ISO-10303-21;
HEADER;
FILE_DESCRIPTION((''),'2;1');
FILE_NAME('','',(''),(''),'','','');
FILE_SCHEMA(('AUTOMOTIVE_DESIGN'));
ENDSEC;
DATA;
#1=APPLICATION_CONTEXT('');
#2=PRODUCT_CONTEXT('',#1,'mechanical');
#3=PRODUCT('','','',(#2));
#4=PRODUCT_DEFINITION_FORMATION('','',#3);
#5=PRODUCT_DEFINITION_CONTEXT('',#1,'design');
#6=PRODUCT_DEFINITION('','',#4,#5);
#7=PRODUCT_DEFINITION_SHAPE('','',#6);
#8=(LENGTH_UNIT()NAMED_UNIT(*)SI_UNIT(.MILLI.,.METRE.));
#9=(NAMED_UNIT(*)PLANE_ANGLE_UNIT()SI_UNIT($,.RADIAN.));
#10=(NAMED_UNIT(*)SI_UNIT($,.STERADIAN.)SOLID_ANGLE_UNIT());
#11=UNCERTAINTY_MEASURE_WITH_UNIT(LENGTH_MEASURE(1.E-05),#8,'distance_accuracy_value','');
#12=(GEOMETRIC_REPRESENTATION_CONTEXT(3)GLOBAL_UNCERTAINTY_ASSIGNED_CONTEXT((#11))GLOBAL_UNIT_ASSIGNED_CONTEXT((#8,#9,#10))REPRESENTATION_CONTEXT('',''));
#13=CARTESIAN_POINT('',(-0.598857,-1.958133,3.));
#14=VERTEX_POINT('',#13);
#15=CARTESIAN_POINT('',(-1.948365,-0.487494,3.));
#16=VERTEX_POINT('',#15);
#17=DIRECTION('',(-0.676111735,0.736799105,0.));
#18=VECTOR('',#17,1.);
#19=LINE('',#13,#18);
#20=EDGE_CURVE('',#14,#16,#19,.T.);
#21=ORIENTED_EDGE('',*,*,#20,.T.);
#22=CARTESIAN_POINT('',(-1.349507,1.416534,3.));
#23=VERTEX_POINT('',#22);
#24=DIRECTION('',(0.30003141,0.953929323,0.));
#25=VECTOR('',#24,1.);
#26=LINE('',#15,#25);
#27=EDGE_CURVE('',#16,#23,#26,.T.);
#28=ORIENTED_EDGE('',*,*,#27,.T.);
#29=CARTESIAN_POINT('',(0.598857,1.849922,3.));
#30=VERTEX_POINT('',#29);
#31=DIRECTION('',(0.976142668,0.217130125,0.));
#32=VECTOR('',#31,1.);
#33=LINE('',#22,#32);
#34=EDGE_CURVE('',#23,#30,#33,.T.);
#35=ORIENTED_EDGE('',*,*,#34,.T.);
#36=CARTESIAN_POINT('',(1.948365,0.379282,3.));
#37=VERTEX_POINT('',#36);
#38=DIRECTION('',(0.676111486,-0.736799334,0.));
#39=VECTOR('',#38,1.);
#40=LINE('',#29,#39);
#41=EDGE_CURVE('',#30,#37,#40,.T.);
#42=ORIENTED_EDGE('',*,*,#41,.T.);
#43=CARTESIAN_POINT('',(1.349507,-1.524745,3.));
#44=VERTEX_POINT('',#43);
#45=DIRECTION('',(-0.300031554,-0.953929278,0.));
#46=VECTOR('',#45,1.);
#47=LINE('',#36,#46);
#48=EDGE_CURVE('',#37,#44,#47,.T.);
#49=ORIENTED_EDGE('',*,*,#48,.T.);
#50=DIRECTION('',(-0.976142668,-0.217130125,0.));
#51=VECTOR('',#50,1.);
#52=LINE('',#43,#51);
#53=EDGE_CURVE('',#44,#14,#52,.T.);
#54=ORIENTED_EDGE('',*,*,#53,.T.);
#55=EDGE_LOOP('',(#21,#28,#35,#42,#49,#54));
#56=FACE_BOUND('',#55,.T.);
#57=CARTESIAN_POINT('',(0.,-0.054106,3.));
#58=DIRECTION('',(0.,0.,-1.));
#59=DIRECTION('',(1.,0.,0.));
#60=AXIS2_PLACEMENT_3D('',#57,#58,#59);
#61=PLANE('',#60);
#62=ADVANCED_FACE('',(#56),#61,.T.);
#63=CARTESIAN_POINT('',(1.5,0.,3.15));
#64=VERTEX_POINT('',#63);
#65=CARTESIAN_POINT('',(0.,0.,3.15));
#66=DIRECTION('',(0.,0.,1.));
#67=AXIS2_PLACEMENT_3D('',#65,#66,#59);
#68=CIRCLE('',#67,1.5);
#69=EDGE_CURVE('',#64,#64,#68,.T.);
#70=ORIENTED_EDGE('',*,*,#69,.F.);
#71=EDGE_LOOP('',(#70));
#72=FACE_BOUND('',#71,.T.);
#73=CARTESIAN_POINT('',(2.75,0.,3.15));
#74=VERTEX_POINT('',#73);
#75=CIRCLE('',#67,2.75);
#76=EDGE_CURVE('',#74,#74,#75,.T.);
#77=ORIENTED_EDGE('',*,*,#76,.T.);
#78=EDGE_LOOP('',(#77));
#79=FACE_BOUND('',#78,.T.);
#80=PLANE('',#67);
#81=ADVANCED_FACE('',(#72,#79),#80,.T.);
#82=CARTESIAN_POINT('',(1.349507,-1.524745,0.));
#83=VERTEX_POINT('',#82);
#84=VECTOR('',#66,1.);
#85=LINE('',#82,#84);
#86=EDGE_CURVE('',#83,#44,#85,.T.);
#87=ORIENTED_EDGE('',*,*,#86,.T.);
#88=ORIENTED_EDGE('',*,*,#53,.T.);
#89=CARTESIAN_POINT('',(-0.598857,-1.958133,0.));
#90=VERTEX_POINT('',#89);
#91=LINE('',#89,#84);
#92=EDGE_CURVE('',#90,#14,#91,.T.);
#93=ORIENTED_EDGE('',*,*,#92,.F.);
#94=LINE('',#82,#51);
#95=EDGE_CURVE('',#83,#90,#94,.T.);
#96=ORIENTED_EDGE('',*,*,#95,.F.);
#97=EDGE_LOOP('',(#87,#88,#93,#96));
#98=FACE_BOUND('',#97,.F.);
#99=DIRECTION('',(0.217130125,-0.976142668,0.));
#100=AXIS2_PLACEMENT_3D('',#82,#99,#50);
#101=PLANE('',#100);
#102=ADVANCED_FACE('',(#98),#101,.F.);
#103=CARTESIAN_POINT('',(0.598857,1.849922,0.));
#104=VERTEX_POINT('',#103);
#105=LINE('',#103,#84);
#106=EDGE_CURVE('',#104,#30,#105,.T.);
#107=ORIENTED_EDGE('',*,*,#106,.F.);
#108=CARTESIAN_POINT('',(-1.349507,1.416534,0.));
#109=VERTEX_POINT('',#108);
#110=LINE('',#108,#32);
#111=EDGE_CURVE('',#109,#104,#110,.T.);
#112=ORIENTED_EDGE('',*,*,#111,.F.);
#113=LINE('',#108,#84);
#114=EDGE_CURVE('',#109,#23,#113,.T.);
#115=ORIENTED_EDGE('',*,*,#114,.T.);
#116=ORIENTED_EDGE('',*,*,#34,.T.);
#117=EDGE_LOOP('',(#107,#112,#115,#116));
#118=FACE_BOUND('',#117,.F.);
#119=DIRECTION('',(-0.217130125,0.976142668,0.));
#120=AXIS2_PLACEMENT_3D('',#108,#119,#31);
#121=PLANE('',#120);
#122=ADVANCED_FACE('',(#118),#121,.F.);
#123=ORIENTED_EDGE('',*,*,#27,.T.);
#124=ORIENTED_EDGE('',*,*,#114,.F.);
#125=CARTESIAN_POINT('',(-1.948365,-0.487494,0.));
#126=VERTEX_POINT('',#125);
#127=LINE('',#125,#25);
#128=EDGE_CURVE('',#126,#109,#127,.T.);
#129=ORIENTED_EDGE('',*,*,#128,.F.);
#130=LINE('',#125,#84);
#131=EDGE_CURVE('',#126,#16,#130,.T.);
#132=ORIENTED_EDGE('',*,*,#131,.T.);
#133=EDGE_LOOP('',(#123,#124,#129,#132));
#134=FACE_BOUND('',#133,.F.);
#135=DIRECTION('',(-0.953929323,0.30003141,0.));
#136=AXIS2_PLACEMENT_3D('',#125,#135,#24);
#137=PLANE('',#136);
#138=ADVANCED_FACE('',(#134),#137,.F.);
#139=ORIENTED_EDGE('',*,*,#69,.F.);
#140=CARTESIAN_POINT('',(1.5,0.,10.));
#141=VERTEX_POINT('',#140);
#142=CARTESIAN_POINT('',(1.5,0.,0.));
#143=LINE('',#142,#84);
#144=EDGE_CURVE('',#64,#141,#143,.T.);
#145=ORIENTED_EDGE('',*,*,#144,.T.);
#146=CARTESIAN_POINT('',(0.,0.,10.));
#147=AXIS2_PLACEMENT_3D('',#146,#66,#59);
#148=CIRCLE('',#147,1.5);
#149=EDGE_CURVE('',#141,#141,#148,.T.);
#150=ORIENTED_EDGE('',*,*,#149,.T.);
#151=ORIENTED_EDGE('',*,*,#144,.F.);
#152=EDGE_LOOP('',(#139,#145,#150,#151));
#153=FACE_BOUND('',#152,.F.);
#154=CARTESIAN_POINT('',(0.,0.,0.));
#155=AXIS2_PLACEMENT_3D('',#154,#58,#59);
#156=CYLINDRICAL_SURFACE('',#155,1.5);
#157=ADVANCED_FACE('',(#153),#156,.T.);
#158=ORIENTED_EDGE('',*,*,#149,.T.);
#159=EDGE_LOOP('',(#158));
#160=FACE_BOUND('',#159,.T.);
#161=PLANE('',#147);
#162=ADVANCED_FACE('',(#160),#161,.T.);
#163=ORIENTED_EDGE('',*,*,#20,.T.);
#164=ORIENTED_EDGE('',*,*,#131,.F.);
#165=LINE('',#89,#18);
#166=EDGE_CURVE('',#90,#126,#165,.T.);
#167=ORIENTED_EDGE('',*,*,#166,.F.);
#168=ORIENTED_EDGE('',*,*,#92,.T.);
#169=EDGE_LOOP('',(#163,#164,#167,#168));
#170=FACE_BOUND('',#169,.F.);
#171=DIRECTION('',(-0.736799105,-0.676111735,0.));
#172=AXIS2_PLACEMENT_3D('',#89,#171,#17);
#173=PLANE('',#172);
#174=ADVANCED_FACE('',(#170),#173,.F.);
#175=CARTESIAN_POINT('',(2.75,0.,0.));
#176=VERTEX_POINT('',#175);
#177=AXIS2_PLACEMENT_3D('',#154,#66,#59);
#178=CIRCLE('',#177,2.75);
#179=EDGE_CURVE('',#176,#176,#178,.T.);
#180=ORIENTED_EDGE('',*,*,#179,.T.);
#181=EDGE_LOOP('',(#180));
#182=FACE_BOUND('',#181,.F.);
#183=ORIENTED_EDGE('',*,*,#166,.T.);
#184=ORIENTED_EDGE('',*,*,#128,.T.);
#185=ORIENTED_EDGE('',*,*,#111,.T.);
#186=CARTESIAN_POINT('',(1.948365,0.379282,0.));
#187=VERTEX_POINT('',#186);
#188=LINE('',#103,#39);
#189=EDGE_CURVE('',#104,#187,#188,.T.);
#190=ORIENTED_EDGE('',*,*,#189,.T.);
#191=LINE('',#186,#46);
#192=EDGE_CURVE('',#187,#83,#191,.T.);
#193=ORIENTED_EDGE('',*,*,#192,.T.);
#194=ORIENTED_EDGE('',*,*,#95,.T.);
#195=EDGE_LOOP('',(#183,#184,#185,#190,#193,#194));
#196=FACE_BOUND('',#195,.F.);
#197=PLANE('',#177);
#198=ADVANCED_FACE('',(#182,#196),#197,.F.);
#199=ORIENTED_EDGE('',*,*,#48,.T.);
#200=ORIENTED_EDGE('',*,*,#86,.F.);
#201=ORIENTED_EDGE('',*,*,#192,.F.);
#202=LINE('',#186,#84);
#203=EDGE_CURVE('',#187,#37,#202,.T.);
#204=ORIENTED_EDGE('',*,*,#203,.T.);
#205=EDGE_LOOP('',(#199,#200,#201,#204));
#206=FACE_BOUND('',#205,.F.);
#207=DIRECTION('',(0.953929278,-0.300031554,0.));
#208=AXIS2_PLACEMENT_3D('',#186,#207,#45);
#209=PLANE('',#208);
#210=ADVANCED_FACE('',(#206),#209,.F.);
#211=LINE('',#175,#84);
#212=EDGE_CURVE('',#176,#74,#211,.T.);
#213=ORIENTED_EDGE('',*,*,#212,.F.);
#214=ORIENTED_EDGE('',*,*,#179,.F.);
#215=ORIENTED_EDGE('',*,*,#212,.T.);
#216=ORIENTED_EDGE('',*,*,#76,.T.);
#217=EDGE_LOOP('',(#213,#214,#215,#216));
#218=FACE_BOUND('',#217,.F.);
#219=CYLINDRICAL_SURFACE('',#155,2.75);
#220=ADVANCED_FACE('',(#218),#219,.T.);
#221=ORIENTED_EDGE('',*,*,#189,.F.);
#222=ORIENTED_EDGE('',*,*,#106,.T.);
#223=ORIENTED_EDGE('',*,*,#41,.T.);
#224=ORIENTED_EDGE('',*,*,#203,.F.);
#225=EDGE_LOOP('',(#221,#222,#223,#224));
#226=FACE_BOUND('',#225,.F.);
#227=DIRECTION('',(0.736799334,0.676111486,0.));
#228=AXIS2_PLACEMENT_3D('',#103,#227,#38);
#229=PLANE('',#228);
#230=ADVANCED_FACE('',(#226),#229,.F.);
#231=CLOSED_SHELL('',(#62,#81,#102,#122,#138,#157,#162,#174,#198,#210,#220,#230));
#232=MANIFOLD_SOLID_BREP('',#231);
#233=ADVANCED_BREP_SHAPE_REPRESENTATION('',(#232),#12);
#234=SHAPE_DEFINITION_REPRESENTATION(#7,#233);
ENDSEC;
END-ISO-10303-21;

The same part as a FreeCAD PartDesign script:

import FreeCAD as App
import Part
import Sketcher
from FreeCAD import Vector
Q = App.Units.Quantity

doc = App.newDocument("Part")
body = doc.addObject("PartDesign::Body", "Body")

# Sketch on XY plane
sketch1 = body.newObject("Sketcher::SketchObject", "Sketch")
sketch1.AttachmentSupport = (doc.getObject("XY_Plane"), [""])
sketch1.MapMode = "FlatFace"
sketch1.addGeometry([
    Part.Circle(Vector(0, 0, 0), Vector(0, 0, 1), 2.75),
    Part.Circle(Vector(0, 0, 0), Vector(0, 0, 1), 1.5),
], False)
sketch1.addConstraint([
    Sketcher.Constraint("Coincident", 0, 3, -1, 1),
    Sketcher.Constraint("Coincident", 1, 3, -1, 1),
    Sketcher.Constraint("Diameter", 1, Q("3 mm")),
    Sketcher.Constraint("Diameter", 0, Q("5.5 mm")),
])
pad1 = body.newObject("PartDesign::Pad", "Pad")
pad1.Profile = sketch1
pad1.Length = 3.15

# Sketch on XY plane
sketch2 = body.newObject("Sketcher::SketchObject", "Sketch001")
sketch2.AttachmentSupport = (doc.getObject("XY_Plane"), [""])
sketch2.MapMode = "FlatFace"
sketch2.addGeometry(Part.Circle(Vector(0, 0, 0), Vector(0, 0, 1), 1.5), False)
sketch2.addConstraint([
    Sketcher.Constraint("Coincident", 0, 3, -1, 1),
    Sketcher.Constraint("Diameter", 0, Q("3 mm")),
])
pad2 = body.newObject("PartDesign::Pad", "Pad001")
pad2.Profile = sketch2
pad2.Length = 10

# Sketch on XY plane
sketch3 = body.newObject("Sketcher::SketchObject", "Sketch002")
sketch3.AttachmentSupport = (doc.getObject("XY_Plane"), [""])
sketch3.MapMode = "FlatFace"
sketch3.addGeometry([
    Part.LineSegment(Vector(1.349507, -1.524745, 0), Vector(-0.598857, -1.958133, 0)),  # 0
    Part.LineSegment(Vector(-0.598857, -1.958133, 0), Vector(-1.948365, -0.487494, 0)),  # 1
    Part.LineSegment(Vector(-1.948365, -0.487494, 0), Vector(-1.349507, 1.416534, 0)),  # 2
    Part.LineSegment(Vector(-1.349507, 1.416534, 0), Vector(0.598857, 1.849922, 0)),  # 3
    Part.LineSegment(Vector(0.598857, 1.849922, 0), Vector(1.948365, 0.379282, 0)),  # 4
    Part.LineSegment(Vector(1.948365, 0.379282, 0), Vector(1.349507, -1.524745, 0)),  # 5
], False)
sketch3.addConstraint([
    Sketcher.Constraint("Coincident", 0, 2, 1, 1),
    Sketcher.Constraint("Coincident", 1, 2, 2, 1),
    Sketcher.Constraint("Coincident", 2, 2, 3, 1),
    Sketcher.Constraint("Coincident", 3, 2, 4, 1),
    Sketcher.Constraint("Coincident", 4, 2, 5, 1),
    Sketcher.Constraint("Coincident", 5, 2, 0, 1),
    Sketcher.Constraint("Parallel", 0, 3),
    Sketcher.Constraint("Parallel", 1, 4),
    Sketcher.Constraint("Parallel", 2, 5),
    Sketcher.Constraint("Equal", 0, 1),
    Sketcher.Constraint("Equal", 1, 2),
    Sketcher.Constraint("Equal", 2, 3),
    Sketcher.Constraint("DistanceY", 0, 2, 1, 2, Q("1.470639 mm")),
    Sketcher.Constraint("DistanceX", 2, 2, 0, 2, Q("0.75065 mm")),
    Sketcher.Constraint("DistanceY", 2, 2, 3, 2, Q("0.433388 mm")),
    Sketcher.Constraint("DistanceX", 1, 2, 3, 2, Q("2.547222 mm")),
    Sketcher.Constraint("DistanceX", 0, 2, -1, 1, Q("0.598857 mm")),
    Sketcher.Constraint("DistanceY", 0, 2, -1, 1, Q("1.958133 mm")),
])
pocket1 = body.newObject("PartDesign::Pocket", "Pocket")
pocket1.Profile = sketch3
pocket1.Length = 3
pocket1.Reversed = True

doc.recompute()
